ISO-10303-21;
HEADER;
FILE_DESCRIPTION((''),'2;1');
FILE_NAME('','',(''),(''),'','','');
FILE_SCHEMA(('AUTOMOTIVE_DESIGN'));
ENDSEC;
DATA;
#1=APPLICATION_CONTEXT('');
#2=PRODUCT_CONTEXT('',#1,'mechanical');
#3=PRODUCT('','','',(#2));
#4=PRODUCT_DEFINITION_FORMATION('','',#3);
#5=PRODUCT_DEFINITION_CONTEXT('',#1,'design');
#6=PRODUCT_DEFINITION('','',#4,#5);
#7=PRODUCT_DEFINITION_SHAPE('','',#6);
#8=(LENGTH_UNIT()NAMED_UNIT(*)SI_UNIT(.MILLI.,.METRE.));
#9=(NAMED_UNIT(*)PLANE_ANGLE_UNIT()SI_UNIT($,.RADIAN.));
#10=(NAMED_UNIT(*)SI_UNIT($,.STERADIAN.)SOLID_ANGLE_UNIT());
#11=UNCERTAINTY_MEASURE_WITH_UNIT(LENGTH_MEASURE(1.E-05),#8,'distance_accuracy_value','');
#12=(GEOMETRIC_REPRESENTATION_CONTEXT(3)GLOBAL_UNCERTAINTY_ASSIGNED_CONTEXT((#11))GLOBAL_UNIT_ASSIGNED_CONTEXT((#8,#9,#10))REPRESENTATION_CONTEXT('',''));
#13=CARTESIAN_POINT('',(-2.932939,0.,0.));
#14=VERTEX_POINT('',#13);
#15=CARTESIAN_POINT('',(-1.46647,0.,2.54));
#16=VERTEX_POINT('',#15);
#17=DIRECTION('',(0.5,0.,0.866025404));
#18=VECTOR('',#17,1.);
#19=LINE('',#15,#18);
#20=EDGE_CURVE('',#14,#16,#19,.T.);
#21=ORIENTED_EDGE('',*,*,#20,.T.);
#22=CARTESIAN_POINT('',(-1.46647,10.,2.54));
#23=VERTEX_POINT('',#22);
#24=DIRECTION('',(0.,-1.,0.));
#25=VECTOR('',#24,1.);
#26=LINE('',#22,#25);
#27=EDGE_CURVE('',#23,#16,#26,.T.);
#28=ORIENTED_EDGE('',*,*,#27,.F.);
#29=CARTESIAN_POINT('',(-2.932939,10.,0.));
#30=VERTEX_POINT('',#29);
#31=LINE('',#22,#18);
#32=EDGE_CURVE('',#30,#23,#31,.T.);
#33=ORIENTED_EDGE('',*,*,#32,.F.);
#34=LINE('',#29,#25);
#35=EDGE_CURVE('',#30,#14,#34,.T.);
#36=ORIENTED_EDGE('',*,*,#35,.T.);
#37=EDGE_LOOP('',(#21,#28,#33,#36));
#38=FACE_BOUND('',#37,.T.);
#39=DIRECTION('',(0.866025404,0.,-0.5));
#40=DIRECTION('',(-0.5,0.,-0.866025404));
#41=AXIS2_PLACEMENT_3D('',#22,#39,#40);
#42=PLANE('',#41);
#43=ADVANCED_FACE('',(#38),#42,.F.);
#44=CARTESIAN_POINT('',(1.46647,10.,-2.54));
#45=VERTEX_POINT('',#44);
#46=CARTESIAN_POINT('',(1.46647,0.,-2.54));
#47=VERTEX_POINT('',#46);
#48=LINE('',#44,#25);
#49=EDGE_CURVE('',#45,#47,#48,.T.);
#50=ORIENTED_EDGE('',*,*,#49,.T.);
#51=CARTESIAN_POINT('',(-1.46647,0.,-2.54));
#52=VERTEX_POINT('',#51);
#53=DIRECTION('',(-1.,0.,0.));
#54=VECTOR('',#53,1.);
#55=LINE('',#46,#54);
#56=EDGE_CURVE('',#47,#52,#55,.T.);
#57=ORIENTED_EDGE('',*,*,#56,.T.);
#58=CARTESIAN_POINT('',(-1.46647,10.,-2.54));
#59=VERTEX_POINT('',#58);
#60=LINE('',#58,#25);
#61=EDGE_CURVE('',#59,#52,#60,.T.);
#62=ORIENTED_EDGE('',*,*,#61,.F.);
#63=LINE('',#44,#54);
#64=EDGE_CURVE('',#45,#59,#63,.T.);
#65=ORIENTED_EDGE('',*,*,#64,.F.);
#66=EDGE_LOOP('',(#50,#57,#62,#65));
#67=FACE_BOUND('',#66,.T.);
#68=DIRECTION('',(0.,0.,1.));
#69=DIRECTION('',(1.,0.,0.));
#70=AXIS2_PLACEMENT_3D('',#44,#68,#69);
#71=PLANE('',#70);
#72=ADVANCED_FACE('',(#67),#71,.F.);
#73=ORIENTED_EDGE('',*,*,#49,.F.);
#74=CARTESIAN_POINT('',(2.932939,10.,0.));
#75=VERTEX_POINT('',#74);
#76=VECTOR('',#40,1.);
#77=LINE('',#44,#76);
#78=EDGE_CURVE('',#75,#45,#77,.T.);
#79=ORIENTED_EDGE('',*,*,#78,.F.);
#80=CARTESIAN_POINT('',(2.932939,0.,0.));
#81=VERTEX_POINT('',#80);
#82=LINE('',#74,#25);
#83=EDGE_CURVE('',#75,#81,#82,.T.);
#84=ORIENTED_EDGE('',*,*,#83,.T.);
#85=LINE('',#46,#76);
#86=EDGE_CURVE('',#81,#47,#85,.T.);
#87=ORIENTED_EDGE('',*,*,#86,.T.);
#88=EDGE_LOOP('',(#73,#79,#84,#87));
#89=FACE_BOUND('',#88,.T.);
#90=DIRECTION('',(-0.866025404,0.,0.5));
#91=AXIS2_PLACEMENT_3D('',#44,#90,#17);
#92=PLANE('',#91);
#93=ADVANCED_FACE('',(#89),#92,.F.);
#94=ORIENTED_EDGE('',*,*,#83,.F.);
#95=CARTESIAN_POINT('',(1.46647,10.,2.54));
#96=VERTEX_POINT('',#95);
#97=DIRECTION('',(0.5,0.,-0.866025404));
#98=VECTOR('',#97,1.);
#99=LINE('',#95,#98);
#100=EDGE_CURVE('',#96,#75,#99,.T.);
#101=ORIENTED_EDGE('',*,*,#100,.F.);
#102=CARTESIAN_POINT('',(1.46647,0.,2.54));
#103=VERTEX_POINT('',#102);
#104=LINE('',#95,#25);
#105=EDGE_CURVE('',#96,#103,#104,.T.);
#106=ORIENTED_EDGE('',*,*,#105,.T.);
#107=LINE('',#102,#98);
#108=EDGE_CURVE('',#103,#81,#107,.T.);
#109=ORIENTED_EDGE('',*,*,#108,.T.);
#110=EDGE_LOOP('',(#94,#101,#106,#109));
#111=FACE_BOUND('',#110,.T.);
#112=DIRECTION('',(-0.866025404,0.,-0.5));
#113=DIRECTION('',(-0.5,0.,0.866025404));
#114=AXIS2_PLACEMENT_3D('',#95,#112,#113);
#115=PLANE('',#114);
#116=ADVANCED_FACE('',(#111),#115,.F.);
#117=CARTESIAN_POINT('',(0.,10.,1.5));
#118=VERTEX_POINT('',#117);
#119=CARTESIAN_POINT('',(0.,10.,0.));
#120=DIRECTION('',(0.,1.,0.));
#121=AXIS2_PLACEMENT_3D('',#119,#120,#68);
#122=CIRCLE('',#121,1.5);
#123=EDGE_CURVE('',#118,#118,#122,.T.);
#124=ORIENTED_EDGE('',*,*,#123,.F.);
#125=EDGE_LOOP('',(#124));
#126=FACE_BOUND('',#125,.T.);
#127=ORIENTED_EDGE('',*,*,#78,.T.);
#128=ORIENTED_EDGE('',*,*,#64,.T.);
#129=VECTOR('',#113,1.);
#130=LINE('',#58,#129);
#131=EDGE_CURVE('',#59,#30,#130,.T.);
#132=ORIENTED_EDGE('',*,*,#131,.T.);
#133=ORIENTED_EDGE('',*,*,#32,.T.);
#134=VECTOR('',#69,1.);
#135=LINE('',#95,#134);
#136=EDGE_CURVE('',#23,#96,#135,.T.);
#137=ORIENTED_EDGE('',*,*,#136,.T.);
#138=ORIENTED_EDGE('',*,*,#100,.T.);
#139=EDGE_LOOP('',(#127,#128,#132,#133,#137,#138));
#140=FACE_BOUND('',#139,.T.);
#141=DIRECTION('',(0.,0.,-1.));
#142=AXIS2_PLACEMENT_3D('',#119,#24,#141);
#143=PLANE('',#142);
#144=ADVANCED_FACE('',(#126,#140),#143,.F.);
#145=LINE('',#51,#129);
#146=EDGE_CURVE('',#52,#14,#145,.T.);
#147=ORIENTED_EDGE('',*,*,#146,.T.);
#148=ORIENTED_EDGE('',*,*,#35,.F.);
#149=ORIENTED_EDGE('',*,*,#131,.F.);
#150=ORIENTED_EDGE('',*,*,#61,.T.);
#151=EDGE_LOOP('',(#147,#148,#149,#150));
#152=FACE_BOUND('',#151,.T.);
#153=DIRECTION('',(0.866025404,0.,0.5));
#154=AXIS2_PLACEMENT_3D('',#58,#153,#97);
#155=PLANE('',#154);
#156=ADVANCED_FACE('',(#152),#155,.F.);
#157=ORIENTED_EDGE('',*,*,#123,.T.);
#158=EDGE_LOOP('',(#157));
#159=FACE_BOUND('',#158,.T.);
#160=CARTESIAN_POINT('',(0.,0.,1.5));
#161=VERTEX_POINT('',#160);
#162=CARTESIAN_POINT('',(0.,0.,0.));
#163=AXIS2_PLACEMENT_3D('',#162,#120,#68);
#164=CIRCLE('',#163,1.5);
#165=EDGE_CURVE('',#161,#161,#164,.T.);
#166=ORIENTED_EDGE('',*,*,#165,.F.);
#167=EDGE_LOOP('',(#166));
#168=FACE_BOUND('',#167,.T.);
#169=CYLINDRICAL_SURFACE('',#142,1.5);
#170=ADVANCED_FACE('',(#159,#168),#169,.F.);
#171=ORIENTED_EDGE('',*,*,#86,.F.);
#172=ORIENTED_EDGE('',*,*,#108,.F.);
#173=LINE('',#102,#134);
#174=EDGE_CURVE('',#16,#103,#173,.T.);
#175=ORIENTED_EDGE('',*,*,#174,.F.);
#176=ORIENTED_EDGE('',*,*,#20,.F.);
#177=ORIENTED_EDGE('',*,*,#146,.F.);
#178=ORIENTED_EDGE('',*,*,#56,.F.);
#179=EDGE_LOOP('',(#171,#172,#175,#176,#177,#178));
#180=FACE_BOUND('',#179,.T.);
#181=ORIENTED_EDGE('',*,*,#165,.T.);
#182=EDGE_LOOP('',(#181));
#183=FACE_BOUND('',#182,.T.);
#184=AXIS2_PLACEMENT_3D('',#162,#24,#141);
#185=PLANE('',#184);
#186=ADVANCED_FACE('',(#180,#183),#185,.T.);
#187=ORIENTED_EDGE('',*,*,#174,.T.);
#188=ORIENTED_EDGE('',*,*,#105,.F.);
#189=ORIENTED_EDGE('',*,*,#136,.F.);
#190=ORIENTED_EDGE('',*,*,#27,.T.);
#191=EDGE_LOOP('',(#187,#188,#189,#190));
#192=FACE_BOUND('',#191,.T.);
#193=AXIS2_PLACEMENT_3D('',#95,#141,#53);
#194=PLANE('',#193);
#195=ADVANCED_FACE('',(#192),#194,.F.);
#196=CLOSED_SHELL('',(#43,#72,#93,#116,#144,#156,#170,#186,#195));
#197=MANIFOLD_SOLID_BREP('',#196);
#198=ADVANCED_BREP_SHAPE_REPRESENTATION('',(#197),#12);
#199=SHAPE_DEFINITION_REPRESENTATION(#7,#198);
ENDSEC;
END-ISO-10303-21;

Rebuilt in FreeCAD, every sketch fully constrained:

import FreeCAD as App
import Part
import Sketcher
from FreeCAD import Vector
Q = App.Units.Quantity


def add_polygon(sketch, points):
    """Adds a closed chain of lines whose ends are joined by coincident constraints."""
    first, n = sketch.GeometryCount, len(points)
    for a, b in zip(points, points[1:] + points[:1]):
        sketch.addGeometry(Part.LineSegment(App.Vector(*a, 0), App.Vector(*b, 0)), False)
    for i in range(n):
        sketch.addConstraint(Sketcher.Constraint("Coincident", first + i, 2, first + (i + 1) % n, 1))

doc = App.newDocument("Part")
body = doc.addObject("PartDesign::Body", "Body")

# Sketch on XZ plane
sketch1 = body.newObject("Sketcher::SketchObject", "Sketch")
sketch1.AttachmentSupport = (doc.getObject("XZ_Plane"), [""])
sketch1.MapMode = "FlatFace"
add_polygon(sketch1, [(1.5, -2.5), (-1.5, -2.5), (-2.9, 0), (-1.5, 2.5), (1.5, 2.5), (2.9, 0)])  # lines 0-5
sketch1.addGeometry(Part.Circle(Vector(0, 0, 0), Vector(0, 0, 1), 1.5), False)  # 6
sketch1.addConstraint([
    Sketcher.Constraint("Horizontal", 0),
    Sketcher.Constraint("Horizontal", 3),
    Sketcher.Constraint("Coincident", 6, 3, -1, 1),
    Sketcher.Constraint("Symmetric", 0, 2, 3, 2, -1, 1),
    Sketcher.Constraint("Symmetric", 1, 2, 4, 2, -1, 1),
    Sketcher.Constraint("PointOnObject", 1, 2, -1),
    Sketcher.Constraint("Parallel", 2, 5),
    Sketcher.Constraint("Vertical", 0, 2, 2, 2),
    Sketcher.Constraint("Diameter", 6, Q("3 mm")),
    Sketcher.Constraint("Angle", 1, Q("120 deg")),
    Sketcher.Constraint("DistanceY", 0, 2, -1, 1, Q("2.54 mm")),
    Sketcher.Constraint("DistanceX", 0, 2, 0, 1, Q("2.932939 mm")),
])
pad1 = body.newObject("PartDesign::Pad", "Pad")
pad1.Profile = sketch1
pad1.Length = 10
pad1.Reversed = True

doc.recompute()
